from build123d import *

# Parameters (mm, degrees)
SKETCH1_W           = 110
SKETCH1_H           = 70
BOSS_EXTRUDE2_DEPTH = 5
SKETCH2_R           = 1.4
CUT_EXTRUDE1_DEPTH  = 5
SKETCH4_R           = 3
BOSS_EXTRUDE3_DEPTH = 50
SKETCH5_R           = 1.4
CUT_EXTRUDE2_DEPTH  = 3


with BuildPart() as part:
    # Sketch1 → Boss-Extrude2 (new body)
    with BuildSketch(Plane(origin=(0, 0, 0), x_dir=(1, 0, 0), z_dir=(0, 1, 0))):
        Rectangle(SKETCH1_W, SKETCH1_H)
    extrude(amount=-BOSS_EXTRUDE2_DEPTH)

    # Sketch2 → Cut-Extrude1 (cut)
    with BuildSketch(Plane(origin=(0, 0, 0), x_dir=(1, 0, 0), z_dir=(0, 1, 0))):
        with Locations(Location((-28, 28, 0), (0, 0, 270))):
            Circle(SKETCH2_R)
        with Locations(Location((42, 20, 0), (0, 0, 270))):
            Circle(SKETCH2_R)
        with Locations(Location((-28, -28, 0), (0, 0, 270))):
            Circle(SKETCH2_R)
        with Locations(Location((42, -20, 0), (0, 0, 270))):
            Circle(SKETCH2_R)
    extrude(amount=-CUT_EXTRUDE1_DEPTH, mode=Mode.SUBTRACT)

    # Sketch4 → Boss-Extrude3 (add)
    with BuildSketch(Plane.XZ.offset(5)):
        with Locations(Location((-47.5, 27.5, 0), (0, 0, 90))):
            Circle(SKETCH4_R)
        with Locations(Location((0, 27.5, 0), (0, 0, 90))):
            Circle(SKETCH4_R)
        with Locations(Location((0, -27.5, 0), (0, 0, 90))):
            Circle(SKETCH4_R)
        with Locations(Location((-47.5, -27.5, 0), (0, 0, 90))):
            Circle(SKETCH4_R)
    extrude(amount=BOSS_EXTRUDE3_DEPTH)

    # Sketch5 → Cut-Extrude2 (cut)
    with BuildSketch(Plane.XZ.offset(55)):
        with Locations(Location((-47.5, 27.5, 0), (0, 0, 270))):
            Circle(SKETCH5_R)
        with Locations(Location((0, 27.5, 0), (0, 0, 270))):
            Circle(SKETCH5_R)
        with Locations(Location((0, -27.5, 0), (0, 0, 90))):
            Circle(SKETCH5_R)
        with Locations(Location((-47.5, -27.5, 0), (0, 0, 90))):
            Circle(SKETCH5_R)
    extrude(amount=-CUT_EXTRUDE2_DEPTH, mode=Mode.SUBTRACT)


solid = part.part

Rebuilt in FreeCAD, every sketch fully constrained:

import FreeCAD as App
import Part
import Sketcher
from FreeCAD import Vector

doc = App.newDocument("Part")
body = doc.addObject("PartDesign::Body", "Body")

# Sketch on XZ plane
sketch1 = body.newObject("Sketcher::SketchObject", "Sketch")
sketch1.AttachmentSupport = (doc.getObject("XZ_Plane"), [""])
sketch1.MapMode = "FlatFace"
sketch1.addGeometry([
    Part.LineSegment(Vector(-55, -35, 0), Vector(-55, 35, 0)),
    Part.LineSegment(Vector(-55, 35, 0), Vector(55, 35, 0)),
    Part.LineSegment(Vector(55, 35, 0), Vector(55, -35, 0)),
    Part.LineSegment(Vector(55, -35, 0), Vector(-55, -35, 0)),
], False)
sketch1.addConstraint([
    Sketcher.Constraint("Coincident", 0, 2, 1, 1),
    Sketcher.Constraint("Coincident", 1, 2, 2, 1),
    Sketcher.Constraint("Coincident", 2, 2, 3, 1),
    Sketcher.Constraint("Coincident", 3, 2, 0, 1),
    Sketcher.Constraint("Vertical", 0),
    Sketcher.Constraint("Horizontal", 1),
    Sketcher.Constraint("Vertical", 2),
    Sketcher.Constraint("Horizontal", 3),
    Sketcher.Constraint("Symmetric", 0, 2, 2, 2, -1, 1),
    Sketcher.Constraint("DistanceX", 1, 1, 1, 2, 110.0),
    Sketcher.Constraint("DistanceY", 0, 1, 0, 2, 70.0),
])
pad1 = body.newObject("PartDesign::Pad", "Pad")
pad1.Profile = sketch1
pad1.Length = 5

# Sketch on XZ plane
sketch2 = body.newObject("Sketcher::SketchObject", "Sketch001")
sketch2.AttachmentSupport = (doc.getObject("XZ_Plane"), [""])
sketch2.MapMode = "FlatFace"
sketch2.addGeometry([
    Part.Circle(Vector(-28, -28, 0), Vector(0, 0, 1), 1.4),
    Part.Circle(Vector(42, -20, 0), Vector(0, 0, 1), 1.4),
    Part.Circle(Vector(-28, 28, 0), Vector(0, 0, 1), 1.4),
    Part.Circle(Vector(42, 20, 0), Vector(0, 0, 1), 1.4),
], False)
sketch2.addConstraint([
    Sketcher.Constraint("Equal", 0, 1),
    Sketcher.Constraint("Equal", 1, 2),
    Sketcher.Constraint("Equal", 2, 3),
    Sketcher.Constraint("Symmetric", 0, 3, 2, 3, -1),
    Sketcher.Constraint("Symmetric", 1, 3, 3, 3, -1),
    Sketcher.Constraint("Diameter", 0, 2.8),
    Sketcher.Constraint("DistanceX", 0, 3, -1, 1, 28.0),
    Sketcher.Constraint("DistanceY", 0, 3, -1, 1, 28.0),
    Sketcher.Constraint("DistanceX", -1, 1, 1, 3, 42.0),
    Sketcher.Constraint("DistanceY", 1, 3, -1, 1, 20.0),
])
pocket1 = body.newObject("PartDesign::Pocket", "Pocket")
pocket1.Profile = sketch2
pocket1.Length = 5
pocket1.Reversed = True

# Sketch on XZ plane
sketch3 = body.newObject("Sketcher::SketchObject", "Sketch002")
sketch3.AttachmentSupport = (doc.getObject("XZ_Plane"), [""])
sketch3.MapMode = "FlatFace"
sketch3.AttachmentOffset = App.Placement(Vector(0, 0, 5), App.Rotation())
sketch3.addGeometry([
    Part.Circle(Vector(-47.5, 27.5, 0), Vector(0, 0, 1), 3),
    Part.Circle(Vector(0, 27.5, 0), Vector(0, 0, 1), 3),
    Part.Circle(Vector(0, -27.5, 0), Vector(0, 0, 1), 3),
    Part.Circle(Vector(-47.5, -27.5, 0), Vector(0, 0, 1), 3),
], False)
sketch3.addConstraint([
    Sketcher.Constraint("Equal", 0, 1),
    Sketcher.Constraint("Equal", 1, 2),
    Sketcher.Constraint("Equal", 2, 3),
    Sketcher.Constraint("Symmetric", 1, 3, 2, 3, -1, 1),
    Sketcher.Constraint("Symmetric", 0, 3, 3, 3, -1),
    Sketcher.Constraint("PointOnObject", 1, 3, -2),
    Sketcher.Constraint("Horizontal", 0, 3, 1, 3),
    Sketcher.Constraint("Diameter", 0, 6.0),
    Sketcher.Constraint("DistanceY", 2, 3, 1, 3, 55.0),
    Sketcher.Constraint("DistanceX", 0, 3, -1, 1, 47.5),
])
pad2 = body.newObject("PartDesign::Pad", "Pad001")
pad2.Profile = sketch3
pad2.Length = 50

# Sketch on XZ plane
sketch4 = body.newObject("Sketcher::SketchObject", "Sketch003")
sketch4.AttachmentSupport = (doc.getObject("XZ_Plane"), [""])
sketch4.MapMode = "FlatFace"
sketch4.AttachmentOffset = App.Placement(Vector(0, 0, 55), App.Rotation())
sketch4.addGeometry([
    Part.Circle(Vector(-47.5, 27.5, 0), Vector(0, 0, 1), 1.4),
    Part.Circle(Vector(0, 27.5, 0), Vector(0, 0, 1), 1.4),
    Part.Circle(Vector(0, -27.5, 0), Vector(0, 0, 1), 1.4),
    Part.Circle(Vector(-47.5, -27.5, 0), Vector(0, 0, 1), 1.4),
], False)
sketch4.addConstraint([
    Sketcher.Constraint("Equal", 0, 1),
    Sketcher.Constraint("Equal", 1, 2),
    Sketcher.Constraint("Equal", 2, 3),
    Sketcher.Constraint("Symmetric", 1, 3, 2, 3, -1, 1),
    Sketcher.Constraint("Symmetric", 0, 3, 3, 3, -1),
    Sketcher.Constraint("PointOnObject", 1, 3, -2),
    Sketcher.Constraint("Horizontal", 0, 3, 1, 3),
    Sketcher.Constraint("Diameter", 0, 2.8),
    Sketcher.Constraint("DistanceY", 2, 3, 1, 3, 55.0),
    Sketcher.Constraint("DistanceX", 0, 3, -1, 1, 47.5),
])
pocket2 = body.newObject("PartDesign::Pocket", "Pocket001")
pocket2.Profile = sketch4
pocket2.Length = 3

doc.recompute()
